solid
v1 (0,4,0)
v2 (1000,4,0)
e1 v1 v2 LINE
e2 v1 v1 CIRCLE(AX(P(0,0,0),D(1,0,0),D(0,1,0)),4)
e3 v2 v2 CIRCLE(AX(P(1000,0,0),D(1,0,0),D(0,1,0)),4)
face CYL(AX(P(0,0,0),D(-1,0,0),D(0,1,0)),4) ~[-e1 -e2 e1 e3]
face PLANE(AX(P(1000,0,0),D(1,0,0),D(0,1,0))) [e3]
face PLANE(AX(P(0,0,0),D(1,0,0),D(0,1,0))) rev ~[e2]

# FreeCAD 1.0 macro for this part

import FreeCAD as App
import Part
import Sketcher
from FreeCAD import Vector
Q = App.Units.Quantity

doc = App.newDocument("Part")
params = doc.addObject("Spreadsheet::Sheet", "Params")
for row, (alias, value) in enumerate([
    ("sketch1_diameter", "8 mm"),
    ("pad1_length", "1000 mm"),
], start=1):
    params.set(f"A{row}", alias)
    params.set(f"B{row}", "=" + value)
    params.setAlias(f"B{row}", alias)

body = doc.addObject("PartDesign::Body", "Body")

sketch1 = body.newObject("Sketcher::SketchObject", "Sketch")
sketch1.AttachmentSupport = (doc.getObject("YZ_Plane"), [""])
sketch1.MapMode = "FlatFace"
sketch1.addGeometry(Part.Circle(Vector(0, 0, 0), Vector(0, 0, 1), 4), False)
sketch1.addConstraint(Sketcher.Constraint("Coincident", 0, 3, -1, 1))
sketch1.addConstraint(Sketcher.Constraint("Diameter", 0, Q("8 mm")))
sketch1.setExpression("Constraints[1]", "Params.sketch1_diameter")
pad1 = body.newObject("PartDesign::Pad", "Pad")
pad1.Profile = sketch1
pad1.setExpression("Length", "Params.pad1_length")

doc.recompute()
